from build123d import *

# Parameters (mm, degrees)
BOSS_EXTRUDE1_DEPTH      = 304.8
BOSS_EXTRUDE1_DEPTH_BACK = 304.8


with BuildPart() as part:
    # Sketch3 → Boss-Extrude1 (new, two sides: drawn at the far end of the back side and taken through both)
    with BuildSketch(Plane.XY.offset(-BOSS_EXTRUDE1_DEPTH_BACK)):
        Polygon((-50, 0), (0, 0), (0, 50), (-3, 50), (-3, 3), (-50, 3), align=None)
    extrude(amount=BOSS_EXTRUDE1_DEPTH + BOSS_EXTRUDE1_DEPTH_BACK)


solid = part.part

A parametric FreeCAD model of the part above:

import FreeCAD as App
import Part
import Sketcher


def add_polygon(sketch, points):
    """Adds a closed chain of lines whose ends are joined by coincident constraints."""
    first, n = sketch.GeometryCount, len(points)
    for a, b in zip(points, points[1:] + points[:1]):
        sketch.addGeometry(Part.LineSegment(App.Vector(*a, 0), App.Vector(*b, 0)), False)
    for i in range(n):
        sketch.addConstraint(Sketcher.Constraint("Coincident", first + i, 2, first + (i + 1) % n, 1))

doc = App.newDocument("Part")
params = doc.addObject("Spreadsheet::Sheet", "Params")
for row, (alias, value) in enumerate([
    ("sketch1_width", "50 mm"),
    ("sketch1_width2", "3 mm"),
    ("pad1_length", "304.8 mm"),
    ("pad1_length2", "304.8 mm"),
], start=1):
    params.set(f"A{row}", alias)
    params.set(f"B{row}", "=" + value)
    params.setAlias(f"B{row}", alias)

body = doc.addObject("PartDesign::Body", "Body")

# Sketch on XY plane
sketch1 = body.newObject("Sketcher::SketchObject", "Sketch")
sketch1.AttachmentSupport = (doc.getObject("XY_Plane"), [""])
sketch1.MapMode = "FlatFace"
add_polygon(sketch1, [(-50, 0), (0, 0), (0, 50), (-3, 50), (-3, 3), (-50, 3)])  # lines 0-5
sketch1.addConstraint([
    Sketcher.Constraint("Horizontal", 0),
    Sketcher.Constraint("Vertical", 1),
    Sketcher.Constraint("Horizontal", 2),
    Sketcher.Constraint("Vertical", 3),
    Sketcher.Constraint("Horizontal", 4),
    Sketcher.Constraint("Vertical", 5),
    Sketcher.Constraint("Coincident", 0, 2, -1, 1),
    Sketcher.Constraint("Equal", 0, 1),
    Sketcher.Constraint("Equal", 4, 3),
    Sketcher.Constraint("DistanceX", 0, 1, 0, 2, 50.0),
    Sketcher.Constraint("DistanceX", 2, 2, 2, 1, 3.0),
])
sketch1.setExpression("Constraints[15]", "Params.sketch1_width")
sketch1.setExpression("Constraints[16]", "Params.sketch1_width2")
pad1 = body.newObject("PartDesign::Pad", "Pad")
pad1.Profile = sketch1
pad1.Type = "TwoLengths"
pad1.setExpression("Length", "Params.pad1_length")
pad1.setExpression("Length2", "Params.pad1_length2")

doc.recompute()
